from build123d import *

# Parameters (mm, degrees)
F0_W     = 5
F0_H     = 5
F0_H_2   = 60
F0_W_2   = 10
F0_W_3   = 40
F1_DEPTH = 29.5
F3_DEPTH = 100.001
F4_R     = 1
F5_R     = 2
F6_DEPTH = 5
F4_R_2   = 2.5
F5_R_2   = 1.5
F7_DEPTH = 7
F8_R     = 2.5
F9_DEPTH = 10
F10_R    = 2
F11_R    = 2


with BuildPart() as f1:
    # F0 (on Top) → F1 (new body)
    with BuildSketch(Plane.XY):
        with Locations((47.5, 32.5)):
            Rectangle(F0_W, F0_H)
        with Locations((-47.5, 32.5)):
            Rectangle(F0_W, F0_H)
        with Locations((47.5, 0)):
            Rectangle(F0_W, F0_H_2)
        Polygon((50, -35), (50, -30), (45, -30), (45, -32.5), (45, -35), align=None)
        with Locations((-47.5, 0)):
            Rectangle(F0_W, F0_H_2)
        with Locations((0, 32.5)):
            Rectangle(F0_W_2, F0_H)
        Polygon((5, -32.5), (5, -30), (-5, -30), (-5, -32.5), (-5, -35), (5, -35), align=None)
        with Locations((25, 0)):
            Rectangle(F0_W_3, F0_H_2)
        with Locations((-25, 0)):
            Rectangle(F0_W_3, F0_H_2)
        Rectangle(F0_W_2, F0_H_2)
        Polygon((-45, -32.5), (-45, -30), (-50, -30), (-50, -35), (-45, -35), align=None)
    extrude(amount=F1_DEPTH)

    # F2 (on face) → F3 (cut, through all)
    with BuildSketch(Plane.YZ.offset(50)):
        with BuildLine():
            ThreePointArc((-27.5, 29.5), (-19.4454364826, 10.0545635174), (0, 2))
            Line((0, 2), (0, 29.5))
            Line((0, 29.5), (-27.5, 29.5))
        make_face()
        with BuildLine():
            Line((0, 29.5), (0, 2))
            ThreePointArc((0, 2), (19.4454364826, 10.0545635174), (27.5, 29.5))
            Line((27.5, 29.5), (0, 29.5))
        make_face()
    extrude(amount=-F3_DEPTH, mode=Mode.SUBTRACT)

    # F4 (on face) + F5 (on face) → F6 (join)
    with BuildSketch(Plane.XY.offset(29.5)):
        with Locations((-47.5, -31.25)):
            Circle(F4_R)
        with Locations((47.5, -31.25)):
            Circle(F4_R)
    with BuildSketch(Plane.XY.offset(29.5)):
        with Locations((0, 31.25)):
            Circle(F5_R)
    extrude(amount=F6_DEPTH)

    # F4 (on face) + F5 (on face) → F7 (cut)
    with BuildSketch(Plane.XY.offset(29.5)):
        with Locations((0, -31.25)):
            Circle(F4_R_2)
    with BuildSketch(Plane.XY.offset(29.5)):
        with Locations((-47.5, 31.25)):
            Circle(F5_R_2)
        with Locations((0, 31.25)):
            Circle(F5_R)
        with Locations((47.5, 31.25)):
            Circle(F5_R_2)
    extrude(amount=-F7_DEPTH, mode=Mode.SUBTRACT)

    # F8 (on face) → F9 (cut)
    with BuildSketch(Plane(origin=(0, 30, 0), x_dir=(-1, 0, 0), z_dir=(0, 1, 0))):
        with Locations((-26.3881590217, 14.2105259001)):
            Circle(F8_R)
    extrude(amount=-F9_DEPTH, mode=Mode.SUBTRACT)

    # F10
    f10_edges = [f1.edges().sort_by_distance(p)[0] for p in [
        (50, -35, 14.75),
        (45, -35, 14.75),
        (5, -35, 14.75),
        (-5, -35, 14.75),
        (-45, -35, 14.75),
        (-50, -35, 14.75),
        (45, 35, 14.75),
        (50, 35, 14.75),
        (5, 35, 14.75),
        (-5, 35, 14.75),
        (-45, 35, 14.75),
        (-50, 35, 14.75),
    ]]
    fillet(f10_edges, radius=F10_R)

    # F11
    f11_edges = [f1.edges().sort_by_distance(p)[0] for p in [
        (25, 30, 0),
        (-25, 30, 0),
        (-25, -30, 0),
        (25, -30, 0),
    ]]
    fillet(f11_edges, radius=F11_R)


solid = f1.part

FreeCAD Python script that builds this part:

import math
import FreeCAD as App
import Part
import Sketcher

V = App.Vector


def edges_at(feature, points):
    """Names of the edges that pass closest to the given points."""
    edges = feature.Shape.Edges
    near = lambda p: min(range(len(edges)), key=lambda i: edges[i].distToShape(Part.Vertex(*p))[0])
    return sorted({f"Edge{near(p) + 1}" for p in points})

doc = App.newDocument("Part")
body = doc.addObject("PartDesign::Body", "Body")
body.AllowCompound = True

# Sketch on XY plane
sketch1 = doc.addObject("Sketcher::SketchObject", "Sketch")
body.addObject(sketch1)
sketch1.AttachmentSupport = (doc.XY_Plane, [""])
sketch1.MapMode = "FlatFace"
sketch1.addGeometry([
    Part.LineSegment(V(45, 35, 0), V(45, 30, 0)),  # 0
    Part.LineSegment(V(45, 30, 0), V(5, 30, 0)),  # 1
    Part.LineSegment(V(5, 30, 0), V(5, 35, 0)),  # 2
    Part.LineSegment(V(5, 35, 0), V(-5, 35, 0)),  # 3
    Part.LineSegment(V(-5, 35, 0), V(-5, 30, 0)),  # 4
    Part.LineSegment(V(-5, 30, 0), V(-45, 30, 0)),  # 5
    Part.LineSegment(V(-45, 30, 0), V(-45, 35, 0)),  # 6
    Part.LineSegment(V(-45, 35, 0), V(-50, 35, 0)),  # 7
    Part.LineSegment(V(-50, 35, 0), V(-50, -35, 0)),  # 8
    Part.LineSegment(V(-50, -35, 0), V(-45, -35, 0)),  # 9
    Part.LineSegment(V(-45, -35, 0), V(-45, -30, 0)),  # 10
    Part.LineSegment(V(-45, -30, 0), V(-5, -30, 0)),  # 11
    Part.LineSegment(V(-5, -30, 0), V(-5, -35, 0)),  # 12
    Part.LineSegment(V(-5, -35, 0), V(5, -35, 0)),  # 13
    Part.LineSegment(V(5, -35, 0), V(5, -30, 0)),  # 14
    Part.LineSegment(V(5, -30, 0), V(45, -30, 0)),  # 15
    Part.LineSegment(V(45, -30, 0), V(45, -35, 0)),  # 16
    Part.LineSegment(V(45, -35, 0), V(50, -35, 0)),  # 17
    Part.LineSegment(V(50, -35, 0), V(50, 35, 0)),  # 18
    Part.LineSegment(V(50, 35, 0), V(45, 35, 0)),  # 19
], False)
sketch1.addConstraint([
    Sketcher.Constraint("Coincident", 0, 2, 1, 1),
    Sketcher.Constraint("Coincident", 1, 2, 2, 1),
    Sketcher.Constraint("Coincident", 2, 2, 3, 1),
    Sketcher.Constraint("Coincident", 3, 2, 4, 1),
    Sketcher.Constraint("Coincident", 4, 2, 5, 1),
    Sketcher.Constraint("Coincident", 5, 2, 6, 1),
    Sketcher.Constraint("Coincident", 6, 2, 7, 1),
    Sketcher.Constraint("Coincident", 7, 2, 8, 1),
    Sketcher.Constraint("Coincident", 8, 2, 9, 1),
    Sketcher.Constraint("Coincident", 9, 2, 10, 1),
    Sketcher.Constraint("Coincident", 10, 2, 11, 1),
    Sketcher.Constraint("Coincident", 11, 2, 12, 1),
    Sketcher.Constraint("Coincident", 12, 2, 13, 1),
    Sketcher.Constraint("Coincident", 13, 2, 14, 1),
    Sketcher.Constraint("Coincident", 14, 2, 15, 1),
    Sketcher.Constraint("Coincident", 15, 2, 16, 1),
    Sketcher.Constraint("Coincident", 16, 2, 17, 1),
    Sketcher.Constraint("Coincident", 17, 2, 18, 1),
    Sketcher.Constraint("Coincident", 18, 2, 19, 1),
    Sketcher.Constraint("Coincident", 19, 2, 0, 1),
    Sketcher.Constraint("Vertical", 0),
    Sketcher.Constraint("Horizontal", 1),
    Sketcher.Constraint("Vertical", 2),
    Sketcher.Constraint("Horizontal", 3),
    Sketcher.Constraint("Vertical", 4),
    Sketcher.Constraint("Horizontal", 5),
    Sketcher.Constraint("Vertical", 6),
    Sketcher.Constraint("Horizontal", 7),
    Sketcher.Constraint("Vertical", 8),
    Sketcher.Constraint("Horizontal", 9),
    Sketcher.Constraint("Vertical", 10),
    Sketcher.Constraint("Horizontal", 11),
    Sketcher.Constraint("Vertical", 12),
    Sketcher.Constraint("Horizontal", 13),
    Sketcher.Constraint("Vertical", 14),
    Sketcher.Constraint("Horizontal", 15),
    Sketcher.Constraint("Vertical", 16),
    Sketcher.Constraint("Horizontal", 17),
    Sketcher.Constraint("Vertical", 18),
    Sketcher.Constraint("Horizontal", 19),
    Sketcher.Constraint("Symmetric", 0, 2, 10, 2, -1, 1),
    Sketcher.Constraint("Symmetric", 2, 2, 12, 2, -1, 1),
    Sketcher.Constraint("Symmetric", 4, 2, 14, 2, -1, 1),
    Sketcher.Constraint("Symmetric", 6, 2, 16, 2, -1, 1),
    Sketcher.Constraint("Symmetric", 8, 2, 18, 2, -1, 1),
    Sketcher.Constraint("Symmetric", 1, 2, 4, 2, -2),
    Sketcher.Constraint("Symmetric", 9, 2, 16, 2, -2),
    Sketcher.Constraint("Horizontal", 3, 2, 6, 2),
    Sketcher.Constraint("Equal", 19, 0),
    Sketcher.Constraint("DistanceX", 1, 2, 1, 1, 40.0),
    Sketcher.Constraint("DistanceX", 3, 2, 3, 1, 10.0),
    Sketcher.Constraint("DistanceX", 7, 2, 7, 1, 5.0),
    Sketcher.Constraint("DistanceY", 8, 2, 8, 1, 70.0),
])
pad1 = doc.addObject("PartDesign::Pad", "Pad")
body.addObject(pad1)
pad1.Profile = sketch1
pad1.Length = 29.5

# Sketch on YZ plane
sketch2 = doc.addObject("Sketcher::SketchObject", "Sketch001")
body.addObject(sketch2)
sketch2.AttachmentSupport = (doc.YZ_Plane, [""])
sketch2.MapMode = "FlatFace"
sketch2.AttachmentOffset = App.Placement(V(0, 0, 50), App.Rotation())
sketch2.addGeometry([
    Part.ArcOfCircle(Part.Circle(V(0, 30, 0), V(0, 0, 1), 28), math.radians(180), math.radians(270)),
    Part.ArcOfCircle(Part.Circle(V(0, 30, 0), V(0, 0, 1), 28), math.radians(-90), math.radians(0)),
    Part.LineSegment(V(28, 30, 0), V(-28, 30, 0)),
], False)
sketch2.addConstraint([
    Sketcher.Constraint("Tangent", 0, 2, 1, 1),
    Sketcher.Constraint("Coincident", 1, 2, 2, 1),
    Sketcher.Constraint("Coincident", 2, 2, 0, 1),
    Sketcher.Constraint("Horizontal", 2),
    Sketcher.Constraint("Equal", 0, 1),
    Sketcher.Constraint("PointOnObject", 0, 3, -2),
    Sketcher.Constraint("PointOnObject", 0, 2, -2),
    Sketcher.Constraint("Horizontal", 0, 3, 1, 2),
    Sketcher.Constraint("Radius", 0, 27.5),
    Sketcher.Constraint("DistanceY", -1, 1, 0, 2, 2.0),
])
pocket1 = doc.addObject("PartDesign::Pocket", "Pocket")
body.addObject(pocket1)
pocket1.Profile = sketch2
pocket1.Type = "ThroughAll"

# Sketch on XY plane
sketch3 = doc.addObject("Sketcher::SketchObject", "Sketch002")
body.addObject(sketch3)
sketch3.AttachmentSupport = (doc.XY_Plane, [""])
sketch3.MapMode = "FlatFace"
sketch3.AttachmentOffset = App.Placement(V(0, 0, 29.5), App.Rotation())
sketch3.addGeometry([
    Part.Circle(V(-47.5, -31.2, 0), V(0, 0, 1), 1),
    Part.Circle(V(47.5, -31.2, 0), V(0, 0, 1), 1),
    Part.Circle(V(0, 31.2, 0), V(0, 0, 1), 2),
], False)
sketch3.addConstraint([
    Sketcher.Constraint("Equal", 0, 1),
    Sketcher.Constraint("Symmetric", 0, 3, 1, 3, -2),
    Sketcher.Constraint("PointOnObject", 2, 3, -2),
    Sketcher.Constraint("Diameter", 0, 2.0),
    Sketcher.Constraint("Diameter", 2, 4.0),
    Sketcher.Constraint("DistanceX", 0, 3, 1, 3, 95.0),
    Sketcher.Constraint("DistanceY", 0, 3, 2, 3, 62.5),
    Sketcher.Constraint("DistanceY", 0, 3, -1, 1, 31.25),
])
pad2 = doc.addObject("PartDesign::Pad", "Pad001")
body.addObject(pad2)
pad2.Profile = sketch3
pad2.Length = 5

# Sketch on XY plane
sketch4 = doc.addObject("Sketcher::SketchObject", "Sketch003")
body.addObject(sketch4)
sketch4.AttachmentSupport = (doc.XY_Plane, [""])
sketch4.MapMode = "FlatFace"
sketch4.AttachmentOffset = App.Placement(V(0, 0, 29.5), App.Rotation())
sketch4.addGeometry([
    Part.Circle(V(0, -31.2, 0), V(0, 0, 1), 2.5),
    Part.Circle(V(-47.5, 31.2, 0), V(0, 0, 1), 1.5),
    Part.Circle(V(0, 31.2, 0), V(0, 0, 1), 2),
    Part.Circle(V(47.5, 31.2, 0), V(0, 0, 1), 1.5),
], False)
sketch4.addConstraint([
    Sketcher.Constraint("Equal", 1, 3),
    Sketcher.Constraint("Symmetric", 0, 3, 2, 3, -1, 1),
    Sketcher.Constraint("Symmetric", 1, 3, 3, 3, -2),
    Sketcher.Constraint("PointOnObject", 0, 3, -2),
    Sketcher.Constraint("Horizontal", 1, 3, 2, 3),
    Sketcher.Constraint("Diameter", 0, 5.0),
    Sketcher.Constraint("Diameter", 1, 3.0),
    Sketcher.Constraint("Diameter", 2, 4.0),
    Sketcher.Constraint("DistanceX", 1, 3, 3, 3, 95.0),
    Sketcher.Constraint("DistanceY", 0, 3, 1, 3, 62.5),
])
pocket2 = doc.addObject("PartDesign::Pocket", "Pocket001")
body.addObject(pocket2)
pocket2.Profile = sketch4
pocket2.Length = 7

# Sketch on XZ plane
sketch5 = doc.addObject("Sketcher::SketchObject", "Sketch004")
body.addObject(sketch5)
sketch5.AttachmentSupport = (doc.XZ_Plane, [""])
sketch5.MapMode = "FlatFace"
sketch5.AttachmentOffset = App.Placement(V(0, 0, -30), App.Rotation())
sketch5.addGeometry(Part.Circle(V(26.4, 14.2, 0), V(0, 0, 1), 2.5), False)
sketch5.addConstraint([
    Sketcher.Constraint("Diameter", 0, 5.0),
    Sketcher.Constraint("DistanceX", -1, 1, 0, 3, 26.388159),
    Sketcher.Constraint("DistanceY", -1, 1, 0, 3, 14.210526),
])
pocket3 = doc.addObject("PartDesign::Pocket", "Pocket002")
body.addObject(pocket3)
pocket3.Profile = sketch5
pocket3.Length = 10
pocket3.Reversed = True
doc.recompute()

fillet = doc.addObject("PartDesign::Fillet", "Fillet")
body.addObject(fillet)
fillet.Base = (pocket3, edges_at(pocket3, [
    (50, -35, 14.75),
    (45, -35, 14.75),
    (5, -35, 14.75),
    (-5, -35, 14.75),
    (-45, -35, 14.75),
    (-50, -35, 14.75),
    (45, 35, 14.75),
    (50, 35, 14.75),
    (5, 35, 14.75),
    (-5, 35, 14.75),
    (-45, 35, 14.75),
    (-50, 35, 14.75),
]))
fillet.Radius = 2
doc.recompute()

fillet2 = doc.addObject("PartDesign::Fillet", "Fillet001")
body.addObject(fillet2)
fillet2.Base = (fillet, edges_at(fillet, [
    (25, 30, 0),
    (-25, 30, 0),
    (-25, -30, 0),
    (25, -30, 0),
]))
fillet2.Radius = 2

doc.recompute()
